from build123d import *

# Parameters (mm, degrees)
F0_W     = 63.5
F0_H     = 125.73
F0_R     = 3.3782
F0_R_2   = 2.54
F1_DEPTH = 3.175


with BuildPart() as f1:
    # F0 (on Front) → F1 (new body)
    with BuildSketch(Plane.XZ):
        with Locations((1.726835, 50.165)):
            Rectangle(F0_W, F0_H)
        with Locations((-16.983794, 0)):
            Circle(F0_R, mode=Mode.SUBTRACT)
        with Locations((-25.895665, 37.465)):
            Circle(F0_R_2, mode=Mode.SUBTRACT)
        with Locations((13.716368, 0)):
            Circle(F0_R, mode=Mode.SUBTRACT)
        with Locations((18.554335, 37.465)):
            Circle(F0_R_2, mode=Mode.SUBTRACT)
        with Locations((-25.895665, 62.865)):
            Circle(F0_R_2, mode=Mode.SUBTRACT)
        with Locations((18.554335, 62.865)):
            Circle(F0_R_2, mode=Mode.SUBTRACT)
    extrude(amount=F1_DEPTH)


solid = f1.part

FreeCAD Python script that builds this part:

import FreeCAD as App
import Part
import Sketcher
Q = App.Units.Quantity


def add_polygon(sketch, points):
    """Adds a closed chain of lines whose ends are joined by coincident constraints."""
    first, n = sketch.GeometryCount, len(points)
    for a, b in zip(points, points[1:] + points[:1]):
        sketch.addGeometry(Part.LineSegment(App.Vector(*a, 0), App.Vector(*b, 0)), False)
    for i in range(n):
        sketch.addConstraint(Sketcher.Constraint("Coincident", first + i, 2, first + (i + 1) % n, 1))

doc = App.newDocument("Part")
body = doc.addObject("PartDesign::Body", "Body")

sketch1 = body.newObject("Sketcher::SketchObject", "Sketch")
sketch1.AttachmentSupport = (doc.getObject("XZ_Plane"), [""])
sketch1.MapMode = "FlatFace"
add_polygon(sketch1, [(-30, 113), (-30, -12.7), (33.5, -12.7), (33.5, 113)])
sketch1.addGeometry(Part.Circle(App.Vector(-17, 0, 0), App.Vector(0, 0, 1), 3.4), False)
sketch1.addGeometry(Part.Circle(App.Vector(13.7, 0, 0), App.Vector(0, 0, 1), 3.4), False)
sketch1.addGeometry(Part.Circle(App.Vector(-25.9, 37.5, 0), App.Vector(0, 0, 1), 2.5), False)
sketch1.addGeometry(Part.Circle(App.Vector(-25.9, 62.9, 0), App.Vector(0, 0, 1), 2.5), False)
sketch1.addGeometry(Part.Circle(App.Vector(18.6, 37.5, 0), App.Vector(0, 0, 1), 2.5), False)
sketch1.addGeometry(Part.Circle(App.Vector(18.6, 62.9, 0), App.Vector(0, 0, 1), 2.5), False)
sketch1.addConstraint([
    Sketcher.Constraint("Vertical", 0),
    Sketcher.Constraint("Horizontal", 1),
    Sketcher.Constraint("Vertical", 2),
    Sketcher.Constraint("Horizontal", 3),
    Sketcher.Constraint("Equal", 4, 5),
    Sketcher.Constraint("Equal", 6, 7),
    Sketcher.Constraint("Equal", 7, 8),
    Sketcher.Constraint("Equal", 8, 9),
    Sketcher.Constraint("PointOnObject", 4, 3, -1),
    Sketcher.Constraint("PointOnObject", 5, 3, -1),
    Sketcher.Constraint("Horizontal", 6, 3, 8, 3),
    Sketcher.Constraint("Horizontal", 7, 3, 9, 3),
    Sketcher.Constraint("Vertical", 6, 3, 7, 3),
    Sketcher.Constraint("Vertical", 8, 3, 9, 3),
    Sketcher.Constraint("Diameter", 6, Q("0.2 in")),
    Sketcher.Constraint("Diameter", 4, Q("0.266 in")),
    Sketcher.Constraint("DistanceX", 1, 1, 1, 2, Q("2.5 in")),
    Sketcher.Constraint("DistanceY", 6, 3, 7, 3, Q("1 in")),
    Sketcher.Constraint("DistanceY", 0, 2, 0, 1, Q("4.95 in")),
    Sketcher.Constraint("DistanceY", 0, 2, -1, 1, Q("0.5 in")),
    Sketcher.Constraint("DistanceX", 6, 3, 8, 3, Q("1.75 in")),
    Sketcher.Constraint("DistanceY", -1, 1, 6, 3, Q("1.475 in")),
    Sketcher.Constraint("DistanceX", 0, 2, 6, 3, Q("0.1625 in")),
    Sketcher.Constraint("DistanceX", 4, 3, 5, 3, Q("30.700162 mm")),
    Sketcher.Constraint("DistanceX", 6, 3, 4, 3, Q("8.911871 mm")),
    Sketcher.Constraint("DistanceX", 4, 3, -1, 1, Q("16.983794 mm")),
])
pad1 = body.newObject("PartDesign::Pad", "Pad")
pad1.Profile = sketch1
pad1.Length = Q("0.125 in")

doc.recompute()
